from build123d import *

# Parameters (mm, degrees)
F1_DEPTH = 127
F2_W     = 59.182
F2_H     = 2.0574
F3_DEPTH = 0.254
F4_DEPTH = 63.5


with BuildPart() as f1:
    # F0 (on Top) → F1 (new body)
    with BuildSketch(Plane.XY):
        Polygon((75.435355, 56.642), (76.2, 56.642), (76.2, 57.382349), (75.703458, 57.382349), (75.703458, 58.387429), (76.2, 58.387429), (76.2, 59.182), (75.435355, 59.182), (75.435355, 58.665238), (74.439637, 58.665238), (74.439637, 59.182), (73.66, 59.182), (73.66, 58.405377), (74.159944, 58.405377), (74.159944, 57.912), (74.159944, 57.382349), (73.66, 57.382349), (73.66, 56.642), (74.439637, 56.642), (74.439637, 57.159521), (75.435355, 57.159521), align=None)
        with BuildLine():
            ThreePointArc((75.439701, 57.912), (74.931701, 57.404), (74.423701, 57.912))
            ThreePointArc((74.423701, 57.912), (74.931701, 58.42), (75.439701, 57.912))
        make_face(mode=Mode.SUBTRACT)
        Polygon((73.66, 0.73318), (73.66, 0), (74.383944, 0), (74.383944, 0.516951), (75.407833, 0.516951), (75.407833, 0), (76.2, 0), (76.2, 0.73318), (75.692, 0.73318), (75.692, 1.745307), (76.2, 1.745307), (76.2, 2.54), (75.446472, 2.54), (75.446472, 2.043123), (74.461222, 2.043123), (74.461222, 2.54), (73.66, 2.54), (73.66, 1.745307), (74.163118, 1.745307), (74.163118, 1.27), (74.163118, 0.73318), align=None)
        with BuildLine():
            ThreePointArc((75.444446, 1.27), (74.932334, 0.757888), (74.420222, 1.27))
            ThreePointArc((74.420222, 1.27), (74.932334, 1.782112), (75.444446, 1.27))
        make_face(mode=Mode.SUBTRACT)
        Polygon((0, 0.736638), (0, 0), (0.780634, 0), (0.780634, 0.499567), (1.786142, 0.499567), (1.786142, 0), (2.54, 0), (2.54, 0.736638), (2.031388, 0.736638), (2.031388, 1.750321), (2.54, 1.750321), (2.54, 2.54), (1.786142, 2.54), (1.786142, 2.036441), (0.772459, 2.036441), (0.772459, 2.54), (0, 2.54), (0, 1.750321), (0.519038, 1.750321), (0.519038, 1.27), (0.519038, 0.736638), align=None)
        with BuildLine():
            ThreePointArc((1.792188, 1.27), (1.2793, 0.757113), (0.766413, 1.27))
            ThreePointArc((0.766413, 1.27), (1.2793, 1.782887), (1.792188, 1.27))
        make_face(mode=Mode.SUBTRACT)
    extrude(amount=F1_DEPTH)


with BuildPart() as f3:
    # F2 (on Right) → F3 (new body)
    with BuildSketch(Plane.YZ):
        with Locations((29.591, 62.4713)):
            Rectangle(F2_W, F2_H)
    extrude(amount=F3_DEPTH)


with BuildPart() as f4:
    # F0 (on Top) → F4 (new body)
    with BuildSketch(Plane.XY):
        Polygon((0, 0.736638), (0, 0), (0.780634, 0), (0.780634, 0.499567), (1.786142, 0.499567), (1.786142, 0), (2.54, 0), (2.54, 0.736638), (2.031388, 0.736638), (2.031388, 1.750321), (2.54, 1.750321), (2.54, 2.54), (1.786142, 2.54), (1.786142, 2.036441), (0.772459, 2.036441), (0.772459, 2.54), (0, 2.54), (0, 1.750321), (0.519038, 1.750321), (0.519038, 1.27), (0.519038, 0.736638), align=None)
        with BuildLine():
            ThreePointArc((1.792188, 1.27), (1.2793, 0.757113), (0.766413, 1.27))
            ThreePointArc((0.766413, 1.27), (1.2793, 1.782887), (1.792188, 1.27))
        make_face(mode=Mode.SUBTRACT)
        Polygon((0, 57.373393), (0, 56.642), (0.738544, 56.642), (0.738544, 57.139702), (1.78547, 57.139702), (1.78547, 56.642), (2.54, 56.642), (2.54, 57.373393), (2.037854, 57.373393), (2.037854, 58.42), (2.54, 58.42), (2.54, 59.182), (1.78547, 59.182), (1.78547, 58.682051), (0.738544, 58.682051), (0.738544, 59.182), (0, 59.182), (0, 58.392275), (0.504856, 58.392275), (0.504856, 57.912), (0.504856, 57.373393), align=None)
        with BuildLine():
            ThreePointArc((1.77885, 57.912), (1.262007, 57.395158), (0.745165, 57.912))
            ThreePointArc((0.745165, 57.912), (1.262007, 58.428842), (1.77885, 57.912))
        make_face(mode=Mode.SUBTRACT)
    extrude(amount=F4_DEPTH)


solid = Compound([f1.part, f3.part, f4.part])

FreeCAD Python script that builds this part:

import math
import FreeCAD as App
import Part
import Sketcher
from FreeCAD import Vector
Q = App.Units.Quantity


def add_polygon(sketch, points):
    """Adds a closed chain of lines whose ends are joined by coincident constraints."""
    first, n = sketch.GeometryCount, len(points)
    for a, b in zip(points, points[1:] + points[:1]):
        sketch.addGeometry(Part.LineSegment(App.Vector(*a, 0), App.Vector(*b, 0)), False)
    for i in range(n):
        sketch.addConstraint(Sketcher.Constraint("Coincident", first + i, 2, first + (i + 1) % n, 1))

doc = App.newDocument("Part")
body = doc.addObject("PartDesign::Body", "Body")
body.AllowCompound = True

# Sketch on XY plane
sketch1 = body.newObject("Sketcher::SketchObject", "Sketch")
sketch1.AttachmentSupport = (doc.getObject("XY_Plane"), [""])
sketch1.MapMode = "FlatFace"
add_polygon(sketch1, [(75.44, 56.64), (76.2, 56.64), (76.2, 57.38), (75.7, 57.38), (75.7, 58.39), (76.2, 58.39), (76.2, 59.18), (75.44, 59.18), (75.44, 58.67), (74.44, 58.67), (74.44, 59.18), (73.66, 59.18), (73.66, 58.41), (74.16, 58.41), (74.16, 57.38), (73.66, 57.38), (73.66, 56.64), (74.44, 56.64), (74.44, 57.16), (75.44, 57.16)])  # lines 0-19
sketch1.addGeometry(Part.Circle(Vector(74.93, 57.91, 0), Vector(0, 0, 1), 0.51), False)  # 20
add_polygon(sketch1, [(73.66, 0.73), (73.66, 0), (74.38, 0), (74.38, 0.52), (75.41, 0.52), (75.41, 0), (76.2, 0), (76.2, 0.73), (75.69, 0.73), (75.69, 1.75), (76.2, 1.75), (76.2, 2.54), (75.45, 2.54), (75.45, 2.04), (74.46, 2.04), (74.46, 2.54), (73.66, 2.54), (73.66, 1.75), (74.16, 1.75), (74.16, 0.73)])  # lines 21-40
sketch1.addGeometry(Part.Circle(Vector(74.93, 1.27, 0), Vector(0, 0, 1), 0.51), False)  # 41
add_polygon(sketch1, [(0, 0.74), (0, 0), (0.78, 0), (0.78, 0.5), (1.79, 0.5), (1.79, 0), (2.54, 0), (2.54, 0.74), (2.03, 0.74), (2.03, 1.75), (2.54, 1.75), (2.54, 2.54), (1.79, 2.54), (1.79, 2.04), (0.77, 2.04), (0.77, 2.54), (0, 2.54), (0, 1.75), (0.52, 1.75), (0.52, 0.74)])  # lines 42-61
sketch1.addGeometry(Part.ArcOfCircle(Part.Circle(Vector(1.28, 1.27, 0), Vector(0, 0, 1), 0.51), math.radians(0), math.radians(180)), False)  # 62
sketch1.addGeometry(Part.ArcOfCircle(Part.Circle(Vector(1.28, 1.27, 0), Vector(0, 0, 1), 0.51), math.radians(-180), math.radians(0)), False)  # 63
sketch1.addConstraint([
    Sketcher.Constraint("Tangent", 62, 1, 63, 2),
    Sketcher.Constraint("Coincident", 63, 1, 62, 2),
    Sketcher.Constraint("Horizontal", 0),
    Sketcher.Constraint("Vertical", 1),
    Sketcher.Constraint("Horizontal", 2),
    Sketcher.Constraint("Vertical", 3),
    Sketcher.Constraint("Horizontal", 4),
    Sketcher.Constraint("Vertical", 5),
    Sketcher.Constraint("Horizontal", 6),
    Sketcher.Constraint("Vertical", 7),
    Sketcher.Constraint("Horizontal", 8),
    Sketcher.Constraint("Vertical", 9),
    Sketcher.Constraint("Horizontal", 10),
    Sketcher.Constraint("Vertical", 11),
    Sketcher.Constraint("Horizontal", 12),
    Sketcher.Constraint("Vertical", 13),
    Sketcher.Constraint("Horizontal", 14),
    Sketcher.Constraint("Vertical", 15),
    Sketcher.Constraint("Horizontal", 16),
    Sketcher.Constraint("Vertical", 17),
    Sketcher.Constraint("Horizontal", 18),
    Sketcher.Constraint("Vertical", 19),
    Sketcher.Constraint("Vertical", 21),
    Sketcher.Constraint("Horizontal", 22),
    Sketcher.Constraint("Vertical", 23),
    Sketcher.Constraint("Horizontal", 24),
    Sketcher.Constraint("Vertical", 25),
    Sketcher.Constraint("Horizontal", 26),
    Sketcher.Constraint("Vertical", 27),
    Sketcher.Constraint("Horizontal", 28),
    Sketcher.Constraint("Vertical", 29),
    Sketcher.Constraint("Horizontal", 30),
    Sketcher.Constraint("Vertical", 31),
    Sketcher.Constraint("Horizontal", 32),
    Sketcher.Constraint("Vertical", 33),
    Sketcher.Constraint("Horizontal", 34),
    Sketcher.Constraint("Vertical", 35),
    Sketcher.Constraint("Horizontal", 36),
    Sketcher.Constraint("Vertical", 37),
    Sketcher.Constraint("Horizontal", 38),
    Sketcher.Constraint("Vertical", 39),
    Sketcher.Constraint("Horizontal", 40),
    Sketcher.Constraint("Vertical", 42),
    Sketcher.Constraint("Horizontal", 43),
    Sketcher.Constraint("Vertical", 44),
    Sketcher.Constraint("Horizontal", 45),
    Sketcher.Constraint("Vertical", 46),
    Sketcher.Constraint("Horizontal", 47),
    Sketcher.Constraint("Vertical", 48),
    Sketcher.Constraint("Horizontal", 49),
    Sketcher.Constraint("Vertical", 50),
    Sketcher.Constraint("Horizontal", 51),
    Sketcher.Constraint("Vertical", 52),
    Sketcher.Constraint("Horizontal", 53),
    Sketcher.Constraint("Vertical", 54),
    Sketcher.Constraint("Horizontal", 55),
    Sketcher.Constraint("Vertical", 56),
    Sketcher.Constraint("Horizontal", 57),
    Sketcher.Constraint("Vertical", 58),
    Sketcher.Constraint("Horizontal", 59),
    Sketcher.Constraint("Vertical", 60),
    Sketcher.Constraint("Horizontal", 61),
    Sketcher.Constraint("Coincident", 42, 2, -1, 1),
    Sketcher.Constraint("PointOnObject", 21, 2, -1),
    Sketcher.Constraint("PointOnObject", 25, 2, -1),
    Sketcher.Constraint("PointOnObject", 46, 2, -1),
    Sketcher.Constraint("PointOnObject", 57, 2, -2),
    Sketcher.Constraint("Horizontal", 41, 3, 62, 3),
    Sketcher.Constraint("Horizontal", 6, 2, 9, 2),
    Sketcher.Constraint("Horizontal", 2, 2, 13, 2),
    Sketcher.Constraint("Horizontal", 0, 2, 15, 2),
    Sketcher.Constraint("Horizontal", 32, 2, 35, 2),
    Sketcher.Constraint("Horizontal", 30, 2, 37, 2),
    Sketcher.Constraint("Horizontal", 28, 2, 39, 2),
    Sketcher.Constraint("Horizontal", 36, 2, 52, 2),
    Sketcher.Constraint("Horizontal", 53, 2, 56, 2),
    Sketcher.Constraint("Horizontal", 51, 2, 58, 2),
    Sketcher.Constraint("Horizontal", 49, 2, 60, 2),
    Sketcher.Constraint("Horizontal", 63, 3, 62, 1),
    Sketcher.Constraint("Horizontal", 62, 1, 63, 1),
    Sketcher.Constraint("Vertical", 1, 2, 4, 2),
    Sketcher.Constraint("Vertical", 11, 2, 14, 2),
    Sketcher.Constraint("Vertical", 9, 2, 16, 2),
    Sketcher.Constraint("Vertical", 7, 2, 18, 2),
    Sketcher.Constraint("Vertical", 15, 2, 21, 2),
    Sketcher.Constraint("Vertical", 5, 2, 26, 2),
    Sketcher.Constraint("Vertical", 27, 2, 30, 2),
    Sketcher.Constraint("Vertical", 21, 2, 36, 2),
    Sketcher.Constraint("Vertical", 48, 2, 51, 2),
    Sketcher.Constraint("Vertical", 46, 2, 53, 2),
    Sketcher.Constraint("Equal", 55, 50),
    Sketcher.Constraint("Diameter", 20, Q("0.04 in")),
    Sketcher.Constraint("DistanceX", -1, 1, 0, 2, Q("3 in")),
    Sketcher.Constraint("DistanceX", 28, 2, 28, 1, Q("0.02 in")),
    Sketcher.Constraint("DistanceX", -1, 1, 10, 2, Q("2.9 in")),
    Sketcher.Constraint("DistanceY", -1, 1, 31, 2, Q("0.1 in")),
    Sketcher.Constraint("DistanceX", -1, 1, 47, 2, Q("0.1 in")),
    Sketcher.Constraint("DistanceY", -1, 1, 20, 3, Q("2.28 in")),
    Sketcher.Constraint("DistanceY", -1, 1, 41, 3, Q("0.05 in")),
    Sketcher.Constraint("DistanceY", -1, 1, 0, 2, Q("2.23 in")),
    Sketcher.Constraint("DistanceY", -1, 1, 5, 2, Q("2.33 in")),
    Sketcher.Constraint("Diameter", 41, Q("1.024224 mm")),
    Sketcher.Constraint("Radius", 62, Q("0.512888 mm")),
    Sketcher.Constraint("DistanceX", 24, 1, 24, 2, Q("1.023889 mm")),
    Sketcher.Constraint("DistanceX", 32, 2, 32, 1, Q("0.753528 mm")),
    Sketcher.Constraint("DistanceX", 34, 2, 34, 1, Q("0.98525 mm")),
    Sketcher.Constraint("DistanceX", 38, 1, 38, 2, Q("0.503118 mm")),
    Sketcher.Constraint("DistanceX", 47, 1, 47, 2, Q("0.753858 mm")),
    Sketcher.Constraint("DistanceX", 49, 2, 49, 1, Q("0.508612 mm")),
    Sketcher.Constraint("DistanceX", 57, 2, 57, 1, Q("0.772459 mm")),
    Sketcher.Constraint("DistanceX", 59, 1, 59, 2, Q("0.519038 mm")),
    Sketcher.Constraint("DistanceY", 1, 1, 1, 2, Q("0.740349 mm")),
    Sketcher.Constraint("DistanceY", 3, 1, 3, 2, Q("1.00508 mm")),
    Sketcher.Constraint("DistanceY", 7, 2, 7, 1, Q("0.516762 mm")),
    Sketcher.Constraint("DistanceY", 13, 2, 13, 1, Q("1.023028 mm")),
    Sketcher.Constraint("DistanceY", 17, 1, 17, 2, Q("0.517521 mm")),
    Sketcher.Constraint("DistanceY", 21, 2, 21, 1, Q("0.73318 mm")),
    Sketcher.Constraint("DistanceY", 23, 1, 23, 2, Q("0.516951 mm")),
    Sketcher.Constraint("DistanceY", 42, 2, 42, 1, Q("0.736638 mm")),
    Sketcher.Constraint("DistanceY", 54, 2, 54, 1, Q("0.503559 mm")),
    Sketcher.Constraint("DistanceX", -1, 1, 20, 3, Q("74.931701 mm")),
    Sketcher.Constraint("DistanceX", -1, 1, 62, 3, Q("1.2793 mm")),
    Sketcher.Constraint("DistanceX", 0, 1, 0, 2, Q("0.764645 mm")),
    Sketcher.Constraint("DistanceX", 2, 2, 2, 1, Q("0.496542 mm")),
    Sketcher.Constraint("DistanceX", 8, 2, 8, 1, Q("0.995718 mm")),
    Sketcher.Constraint("DistanceX", 12, 1, 12, 2, Q("0.499944 mm")),
    Sketcher.Constraint("DistanceX", 22, 1, 22, 2, Q("0.723944 mm")),
    Sketcher.Constraint("DistanceX", 43, 1, 43, 2, Q("0.780634 mm")),
    Sketcher.Constraint("DistanceY", 29, 1, 29, 2, Q("1.012127 mm")),
    Sketcher.Constraint("DistanceY", 33, 2, 33, 1, Q("0.496877 mm")),
    Sketcher.Constraint("DistanceY", 44, 1, 44, 2, Q("0.499567 mm")),
    Sketcher.Constraint("DistanceX", -1, 1, 41, 3, Q("74.932334 mm")),
])
pad1 = body.newObject("PartDesign::Pad", "Pad")
pad1.Profile = sketch1
pad1.Length = Q("5 in")
body2 = doc.addObject("PartDesign::Body", "Body001")

# Sketch on YZ plane
sketch2 = body2.newObject("Sketcher::SketchObject", "Sketch001")
sketch2.AttachmentSupport = (doc.getObject("YZ_Plane001"), [""])
sketch2.MapMode = "FlatFace"
add_polygon(sketch2, [(0, 63.5), (0, 61.4), (59.2, 61.4), (59.2, 63.5)])  # lines 0-3
sketch2.addConstraint([
    Sketcher.Constraint("Vertical", 0),
    Sketcher.Constraint("Horizontal", 1),
    Sketcher.Constraint("Vertical", 2),
    Sketcher.Constraint("Horizontal", 3),
    Sketcher.Constraint("PointOnObject", 0, 2, -2),
    Sketcher.Constraint("DistanceX", 1, 1, 1, 2, Q("2.33 in")),
    Sketcher.Constraint("DistanceY", -1, 1, 2, 2, Q("2.5 in")),
    Sketcher.Constraint("DistanceY", 0, 2, 0, 1, Q("0.081 in")),
])
pad2 = body2.newObject("PartDesign::Pad", "Pad001")
pad2.Profile = sketch2
pad2.Length = Q("0.01 in")
body3 = doc.addObject("PartDesign::Body", "Body002")
body3.AllowCompound = True

# Sketch on XY plane
sketch3 = body3.newObject("Sketcher::SketchObject", "Sketch002")
sketch3.AttachmentSupport = (doc.getObject("XY_Plane002"), [""])
sketch3.MapMode = "FlatFace"
add_polygon(sketch3, [(0, 0.74), (0, 0), (0.78, 0), (0.78, 0.5), (1.79, 0.5), (1.79, 0), (2.54, 0), (2.54, 0.74), (2.03, 0.74), (2.03, 1.75), (2.54, 1.75), (2.54, 2.54), (1.79, 2.54), (1.79, 2.04), (0.77, 2.04), (0.77, 2.54), (0, 2.54), (0, 1.75), (0.52, 1.75), (0.52, 0.74)])  # lines 0-19
sketch3.addGeometry(Part.ArcOfCircle(Part.Circle(Vector(1.28, 1.27, 0), Vector(0, 0, 1), 0.51), math.radians(0), math.radians(180)), False)  # 20
sketch3.addGeometry(Part.ArcOfCircle(Part.Circle(Vector(1.28, 1.27, 0), Vector(0, 0, 1), 0.51), math.radians(-180), math.radians(0)), False)  # 21
add_polygon(sketch3, [(0, 57.37), (0, 56.64), (0.74, 56.64), (0.74, 57.14), (1.79, 57.14), (1.79, 56.64), (2.54, 56.64), (2.54, 57.37), (2.04, 57.37), (2.04, 58.42), (2.54, 58.42), (2.54, 59.18), (1.79, 59.18), (1.79, 58.68), (0.74, 58.68), (0.74, 59.18), (0, 59.18), (0, 58.39), (0.5, 58.39), (0.5, 57.37)])  # lines 22-41
sketch3.addGeometry(Part.ArcOfCircle(Part.Circle(Vector(1.26, 57.91, 0), Vector(0, 0, 1), 0.52), math.radians(0), math.radians(180)), False)  # 42
sketch3.addGeometry(Part.ArcOfCircle(Part.Circle(Vector(1.26, 57.91, 0), Vector(0, 0, 1), 0.52), math.radians(-180), math.radians(0)), False)  # 43
sketch3.addConstraint([
    Sketcher.Constraint("Tangent", 20, 1, 21, 2),
    Sketcher.Constraint("Coincident", 21, 1, 20, 2),
    Sketcher.Constraint("Tangent", 42, 1, 43, 2),
    Sketcher.Constraint("Coincident", 43, 1, 42, 2),
    Sketcher.Constraint("Vertical", 0),
    Sketcher.Constraint("Horizontal", 1),
    Sketcher.Constraint("Vertical", 2),
    Sketcher.Constraint("Horizontal", 3),
    Sketcher.Constraint("Vertical", 4),
    Sketcher.Constraint("Horizontal", 5),
    Sketcher.Constraint("Vertical", 6),
    Sketcher.Constraint("Horizontal", 7),
    Sketcher.Constraint("Vertical", 8),
    Sketcher.Constraint("Horizontal", 9),
    Sketcher.Constraint("Vertical", 10),
    Sketcher.Constraint("Horizontal", 11),
    Sketcher.Constraint("Vertical", 12),
    Sketcher.Constraint("Horizontal", 13),
    Sketcher.Constraint("Vertical", 14),
    Sketcher.Constraint("Horizontal", 15),
    Sketcher.Constraint("Vertical", 16),
    Sketcher.Constraint("Horizontal", 17),
    Sketcher.Constraint("Vertical", 18),
    Sketcher.Constraint("Horizontal", 19),
    Sketcher.Constraint("Vertical", 22),
    Sketcher.Constraint("Horizontal", 23),
    Sketcher.Constraint("Vertical", 24),
    Sketcher.Constraint("Horizontal", 25),
    Sketcher.Constraint("Vertical", 26),
    Sketcher.Constraint("Horizontal", 27),
    Sketcher.Constraint("Vertical", 28),
    Sketcher.Constraint("Horizontal", 29),
    Sketcher.Constraint("Vertical", 30),
    Sketcher.Constraint("Horizontal", 31),
    Sketcher.Constraint("Vertical", 32),
    Sketcher.Constraint("Horizontal", 33),
    Sketcher.Constraint("Vertical", 34),
    Sketcher.Constraint("Horizontal", 35),
    Sketcher.Constraint("Vertical", 36),
    Sketcher.Constraint("Horizontal", 37),
    Sketcher.Constraint("Vertical", 38),
    Sketcher.Constraint("Horizontal", 39),
    Sketcher.Constraint("Vertical", 40),
    Sketcher.Constraint("Horizontal", 41),
    Sketcher.Constraint("Coincident", 0, 2, -1, 1),
    Sketcher.Constraint("PointOnObject", 4, 2, -1),
    Sketcher.Constraint("PointOnObject", 15, 2, -2),
    Sketcher.Constraint("PointOnObject", 22, 2, -2),
    Sketcher.Constraint("PointOnObject", 37, 2, -2),
    Sketcher.Constraint("Horizontal", 11, 2, 14, 2),
    Sketcher.Constraint("Horizontal", 9, 2, 16, 2),
    Sketcher.Constraint("Horizontal", 7, 2, 18, 2),
    Sketcher.Constraint("Horizontal", 21, 3, 20, 1),
    Sketcher.Constraint("Horizontal", 20, 1, 21, 1),
    Sketcher.Constraint("Horizontal", 23, 2, 26, 2),
    Sketcher.Constraint("Horizontal", 33, 2, 36, 2),
    Sketcher.Constraint("Horizontal", 29, 2, 40, 2),
    Sketcher.Constraint("Horizontal", 43, 3, 42, 1),
    Sketcher.Constraint("Horizontal", 42, 1, 43, 1),
    Sketcher.Constraint("Vertical", 6, 2, 9, 2),
    Sketcher.Constraint("Vertical", 4, 2, 11, 2),
    Sketcher.Constraint("Vertical", 10, 2, 27, 2),
    Sketcher.Constraint("Vertical", 28, 2, 31, 2),
    Sketcher.Constraint("Vertical", 26, 2, 33, 2),
    Sketcher.Constraint("Vertical", 24, 2, 35, 2),
    Sketcher.Constraint("Equal", 13, 8),
    Sketcher.Constraint("DistanceY", 32, 1, 32, 2, Q("0.03 in")),
    Sketcher.Constraint("DistanceX", -1, 1, 5, 2, Q("0.1 in")),
    Sketcher.Constraint("DistanceY", -1, 1, 10, 2, Q("0.1 in")),
    Sketcher.Constraint("DistanceY", -1, 1, 30, 2, Q("2.3 in")),
    Sketcher.Constraint("DistanceY", -1, 1, 20, 3, Q("0.05 in")),
    Sketcher.Constraint("DistanceY", -1, 1, 42, 3, Q("2.28 in")),
    Sketcher.Constraint("DistanceY", -1, 1, 22, 2, Q("2.23 in")),
    Sketcher.Constraint("DistanceY", 24, 1, 24, 2, Q("0.497702 mm")),
    Sketcher.Constraint("Radius", 20, Q("0.512888 mm")),
    Sketcher.Constraint("Radius", 42, Q("0.516842 mm")),
    Sketcher.Constraint("DistanceX", 5, 1, 5, 2, Q("0.753858 mm")),
    Sketcher.Constraint("DistanceX", 7, 2, 7, 1, Q("0.508612 mm")),
    Sketcher.Constraint("DistanceX", 15, 2, 15, 1, Q("0.772459 mm")),
    Sketcher.Constraint("DistanceX", 17, 1, 17, 2, Q("0.519038 mm")),
    Sketcher.Constraint("DistanceX", 27, 1, 27, 2, Q("0.75453 mm")),
    Sketcher.Constraint("DistanceY", 0, 2, 0, 1, Q("0.736638 mm")),
    Sketcher.Constraint("DistanceY", 12, 2, 12, 1, Q("0.503559 mm")),
    Sketcher.Constraint("DistanceY", 34, 2, 34, 1, Q("0.499949 mm")),
    Sketcher.Constraint("DistanceY", 40, 2, 40, 1, Q("1.018882 mm")),
    Sketcher.Constraint("DistanceX", -1, 1, 20, 3, Q("1.2793 mm")),
    Sketcher.Constraint("DistanceX", 1, 1, 1, 2, Q("0.780634 mm")),
    Sketcher.Constraint("DistanceX", 23, 1, 23, 2, Q("0.738544 mm")),
    Sketcher.Constraint("DistanceX", 29, 2, 29, 1, Q("0.502146 mm")),
    Sketcher.Constraint("DistanceX", 39, 1, 39, 2, Q("0.504856 mm")),
    Sketcher.Constraint("DistanceY", 2, 1, 2, 2, Q("0.499567 mm")),
    Sketcher.Constraint("DistanceY", 22, 2, 22, 1, Q("0.731393 mm")),
    Sketcher.Constraint("DistanceX", -1, 1, 42, 1, Q("1.77885 mm")),
])
pad3 = body3.newObject("PartDesign::Pad", "Pad002")
pad3.Profile = sketch3
pad3.Length = Q("2.5 in")

doc.recompute()
